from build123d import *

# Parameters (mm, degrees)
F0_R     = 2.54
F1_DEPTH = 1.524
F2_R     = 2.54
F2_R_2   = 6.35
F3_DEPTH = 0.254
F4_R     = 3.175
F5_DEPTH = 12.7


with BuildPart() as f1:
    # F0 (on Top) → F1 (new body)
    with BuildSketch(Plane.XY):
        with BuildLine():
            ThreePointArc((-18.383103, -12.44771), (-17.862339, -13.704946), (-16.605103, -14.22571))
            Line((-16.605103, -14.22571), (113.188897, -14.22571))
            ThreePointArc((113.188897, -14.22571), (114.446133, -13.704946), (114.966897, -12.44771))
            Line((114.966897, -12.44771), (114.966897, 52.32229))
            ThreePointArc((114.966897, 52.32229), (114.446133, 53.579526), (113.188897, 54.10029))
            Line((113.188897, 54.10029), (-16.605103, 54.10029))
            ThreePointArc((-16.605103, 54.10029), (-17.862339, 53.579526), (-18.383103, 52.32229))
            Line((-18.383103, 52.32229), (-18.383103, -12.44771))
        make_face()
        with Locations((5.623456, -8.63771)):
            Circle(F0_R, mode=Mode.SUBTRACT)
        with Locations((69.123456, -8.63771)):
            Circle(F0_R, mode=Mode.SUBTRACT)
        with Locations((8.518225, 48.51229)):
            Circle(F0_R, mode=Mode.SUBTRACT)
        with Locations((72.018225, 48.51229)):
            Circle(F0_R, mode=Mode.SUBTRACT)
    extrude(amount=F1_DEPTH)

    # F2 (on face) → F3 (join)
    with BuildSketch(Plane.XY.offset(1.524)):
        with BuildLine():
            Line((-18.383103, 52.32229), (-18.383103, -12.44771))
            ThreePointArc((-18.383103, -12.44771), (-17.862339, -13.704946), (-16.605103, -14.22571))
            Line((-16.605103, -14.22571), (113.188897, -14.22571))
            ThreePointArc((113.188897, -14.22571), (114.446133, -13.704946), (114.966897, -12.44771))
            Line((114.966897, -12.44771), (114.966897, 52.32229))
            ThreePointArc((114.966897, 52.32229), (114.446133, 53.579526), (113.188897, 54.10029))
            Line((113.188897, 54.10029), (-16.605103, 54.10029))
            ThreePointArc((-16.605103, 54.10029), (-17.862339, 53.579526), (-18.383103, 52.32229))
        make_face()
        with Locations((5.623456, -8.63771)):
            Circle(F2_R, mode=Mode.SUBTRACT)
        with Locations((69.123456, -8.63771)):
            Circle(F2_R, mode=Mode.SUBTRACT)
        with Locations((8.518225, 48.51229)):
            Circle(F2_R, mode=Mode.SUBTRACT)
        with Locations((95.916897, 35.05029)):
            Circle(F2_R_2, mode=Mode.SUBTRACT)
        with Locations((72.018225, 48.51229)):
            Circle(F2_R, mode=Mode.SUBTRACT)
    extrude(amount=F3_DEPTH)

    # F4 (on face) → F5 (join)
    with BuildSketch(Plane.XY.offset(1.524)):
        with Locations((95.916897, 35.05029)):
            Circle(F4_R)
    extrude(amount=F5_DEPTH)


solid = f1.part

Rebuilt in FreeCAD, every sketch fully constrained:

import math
import FreeCAD as App
import Part
import Sketcher
Q = App.Units.Quantity

doc = App.newDocument("Part")
params = doc.addObject("Spreadsheet::Sheet", "Params")
for row, (alias, value) in enumerate([
    ("sketch1_diameter", "0.2 in"),
    ("sketch1_radius", "0.07 in"),
    ("sketch1_width", "5.11 in"),
    ("sketch1_height", "2.55 in"),
    ("pad1_length", "0.06 in"),
    ("sketch2_diameter", "0.2 in"),
    ("sketch2_diameter2", "0.5 in"),
    ("sketch2_radius", "0.07 in"),
    ("sketch2_width", "5.11 in"),
    ("sketch2_height", "2.55 in"),
    ("pad2_length", "0.01 in"),
    ("sketch3_diameter", "0.25 in"),
    ("pad3_length", "0.5 in"),
], start=1):
    params.set(f"A{row}", alias)
    params.set(f"B{row}", "=" + value)
    params.setAlias(f"B{row}", alias)

body = doc.addObject("PartDesign::Body", "Body")

# Sketch on XY plane
sketch1 = doc.addObject("Sketcher::SketchObject", "Sketch")
body.addObject(sketch1)
sketch1.AttachmentSupport = (doc.XY_Plane, [""])
sketch1.MapMode = "FlatFace"
sketch1.addGeometry(Part.ArcOfCircle(Part.Circle(App.Vector(-16.605103, -12.44771, 0), App.Vector(0, 0, 1), 1.778), math.radians(179.999984), math.radians(270.000016)), False)
sketch1.addGeometry(Part.LineSegment(App.Vector(-16.605103, -14.22571, 0), App.Vector(113.188897, -14.22571, 0)), False)
sketch1.addGeometry(Part.ArcOfCircle(Part.Circle(App.Vector(113.188897, -12.44771, 0), App.Vector(0, 0, 1), 1.778), math.radians(-90.000016), math.radians(0.000016)), False)
sketch1.addGeometry(Part.LineSegment(App.Vector(114.966897, -12.44771, 0), App.Vector(114.966897, 52.32229, 0)), False)
sketch1.addGeometry(Part.ArcOfCircle(Part.Circle(App.Vector(113.188897, 52.32229, 0), App.Vector(0, 0, 1), 1.778), math.radians(-0.000016), math.radians(90.000016)), False)
sketch1.addGeometry(Part.LineSegment(App.Vector(113.188897, 54.10029, 0), App.Vector(-16.605103, 54.10029, 0)), False)
sketch1.addGeometry(Part.ArcOfCircle(Part.Circle(App.Vector(-16.605103, 52.32229, 0), App.Vector(0, 0, 1), 1.778), math.radians(89.999984), math.radians(180.000016)), False)
sketch1.addGeometry(Part.LineSegment(App.Vector(-18.383103, 52.32229, 0), App.Vector(-18.383103, -12.44771, 0)), False)
sketch1.addGeometry(Part.Circle(App.Vector(5.623456, -8.63771, 0), App.Vector(0, 0, 1), 2.54), False)
sketch1.addGeometry(Part.Circle(App.Vector(69.123456, -8.63771, 0), App.Vector(0, 0, 1), 2.54), False)
sketch1.addGeometry(Part.Circle(App.Vector(8.518225, 48.51229, 0), App.Vector(0, 0, 1), 2.54), False)
sketch1.addGeometry(Part.Circle(App.Vector(72.018225, 48.51229, 0), App.Vector(0, 0, 1), 2.54), False)
sketch1.addConstraint(Sketcher.Constraint("Tangent", 0, 2, 1, 1))
sketch1.addConstraint(Sketcher.Constraint("Tangent", 1, 2, 2, 1))
sketch1.addConstraint(Sketcher.Constraint("Tangent", 2, 2, 3, 1))
sketch1.addConstraint(Sketcher.Constraint("Tangent", 3, 2, 4, 1))
sketch1.addConstraint(Sketcher.Constraint("Tangent", 4, 2, 5, 1))
sketch1.addConstraint(Sketcher.Constraint("Tangent", 5, 2, 6, 1))
sketch1.addConstraint(Sketcher.Constraint("Tangent", 6, 2, 7, 1))
sketch1.addConstraint(Sketcher.Constraint("Tangent", 7, 2, 0, 1))
sketch1.addConstraint(Sketcher.Constraint("Horizontal", 1))
sketch1.addConstraint(Sketcher.Constraint("Vertical", 3))
sketch1.addConstraint(Sketcher.Constraint("Horizontal", 5))
sketch1.addConstraint(Sketcher.Constraint("Vertical", 7))
sketch1.addConstraint(Sketcher.Constraint("Equal", 0, 2))
sketch1.addConstraint(Sketcher.Constraint("Equal", 2, 4))
sketch1.addConstraint(Sketcher.Constraint("Equal", 4, 6))
sketch1.addConstraint(Sketcher.Constraint("Equal", 8, 9))
sketch1.addConstraint(Sketcher.Constraint("Equal", 9, 10))
sketch1.addConstraint(Sketcher.Constraint("Equal", 10, 11))
sketch1.addConstraint(Sketcher.Constraint("Horizontal", 8, 3, 9, 3))
sketch1.addConstraint(Sketcher.Constraint("Horizontal", 10, 3, 11, 3))
sketch1.addConstraint(Sketcher.Constraint("Diameter", 8, Q("0.2 in")))
sketch1.addConstraint(Sketcher.Constraint("Radius", 0, Q("0.07 in")))
sketch1.addConstraint(Sketcher.Constraint("DistanceX", 1, 1, 1, 2, Q("5.11 in")))
sketch1.addConstraint(Sketcher.Constraint("DistanceY", 3, 1, 3, 2, Q("2.55 in")))
sketch1.addConstraint(Sketcher.Constraint("DistanceY", 8, 3, 6, 3, Q("2.4 in")))
sketch1.addConstraint(Sketcher.Constraint("DistanceX", 8, 3, 9, 3, Q("2.5 in")))
sketch1.addConstraint(Sketcher.Constraint("DistanceY", 0, 3, 10, 3, Q("2.4 in")))
sketch1.addConstraint(Sketcher.Constraint("DistanceX", 10, 3, 11, 3, Q("2.5 in")))
sketch1.addConstraint(Sketcher.Constraint("DistanceY", 0, 3, -1, 1, 12.44771))
sketch1.addConstraint(Sketcher.Constraint("DistanceX", 0, 3, 8, 3, 22.228559))
sketch1.addConstraint(Sketcher.Constraint("DistanceX", 6, 3, 10, 3, 25.123328))
sketch1.addConstraint(Sketcher.Constraint("DistanceX", 0, 3, -1, 1, 16.605103))
sketch1.setExpression("Constraints[20]", "Params.sketch1_diameter")
sketch1.setExpression("Constraints[21]", "Params.sketch1_radius")
sketch1.setExpression("Constraints[22]", "Params.sketch1_width")
sketch1.setExpression("Constraints[23]", "Params.sketch1_height")
pad1 = doc.addObject("PartDesign::Pad", "Pad")
body.addObject(pad1)
pad1.Profile = sketch1
pad1.setExpression("Length", "Params.pad1_length")

# Sketch on XY plane
sketch2 = doc.addObject("Sketcher::SketchObject", "Sketch001")
body.addObject(sketch2)
sketch2.AttachmentSupport = (doc.XY_Plane, [""])
sketch2.MapMode = "FlatFace"
sketch2.AttachmentOffset = App.Placement(App.Vector(0, 0, 0.06 * 25.4), App.Rotation())
sketch2.addGeometry(Part.LineSegment(App.Vector(-18.383103, 52.32229, 0), App.Vector(-18.383103, -12.44771, 0)), False)
sketch2.addGeometry(Part.ArcOfCircle(Part.Circle(App.Vector(-16.605103, -12.44771, 0), App.Vector(0, 0, 1), 1.778), math.radians(179.999984), math.radians(270.000016)), False)
sketch2.addGeometry(Part.LineSegment(App.Vector(-16.605103, -14.22571, 0), App.Vector(113.188897, -14.22571, 0)), False)
sketch2.addGeometry(Part.ArcOfCircle(Part.Circle(App.Vector(113.188897, -12.44771, 0), App.Vector(0, 0, 1), 1.778), math.radians(-90.000016), math.radians(0.000016)), False)
sketch2.addGeometry(Part.LineSegment(App.Vector(114.966897, -12.44771, 0), App.Vector(114.966897, 52.32229, 0)), False)
sketch2.addGeometry(Part.ArcOfCircle(Part.Circle(App.Vector(113.188897, 52.32229, 0), App.Vector(0, 0, 1), 1.778), math.radians(-0.000016), math.radians(90.000016)), False)
sketch2.addGeometry(Part.LineSegment(App.Vector(113.188897, 54.10029, 0), App.Vector(-16.605103, 54.10029, 0)), False)
sketch2.addGeometry(Part.ArcOfCircle(Part.Circle(App.Vector(-16.605103, 52.32229, 0), App.Vector(0, 0, 1), 1.778), math.radians(89.999984), math.radians(180.000016)), False)
sketch2.addGeometry(Part.Circle(App.Vector(5.623456, -8.63771, 0), App.Vector(0, 0, 1), 2.54), False)
sketch2.addGeometry(Part.Circle(App.Vector(69.123456, -8.63771, 0), App.Vector(0, 0, 1), 2.54), False)
sketch2.addGeometry(Part.Circle(App.Vector(8.518225, 48.51229, 0), App.Vector(0, 0, 1), 2.54), False)
sketch2.addGeometry(Part.Circle(App.Vector(95.916897, 35.05029, 0), App.Vector(0, 0, 1), 6.35), False)
sketch2.addGeometry(Part.Circle(App.Vector(72.018225, 48.51229, 0), App.Vector(0, 0, 1), 2.54), False)
sketch2.addConstraint(Sketcher.Constraint("Tangent", 0, 2, 1, 1))
sketch2.addConstraint(Sketcher.Constraint("Tangent", 1, 2, 2, 1))
sketch2.addConstraint(Sketcher.Constraint("Tangent", 2, 2, 3, 1))
sketch2.addConstraint(Sketcher.Constraint("Tangent", 3, 2, 4, 1))
sketch2.addConstraint(Sketcher.Constraint("Tangent", 4, 2, 5, 1))
sketch2.addConstraint(Sketcher.Constraint("Tangent", 5, 2, 6, 1))
sketch2.addConstraint(Sketcher.Constraint("Tangent", 6, 2, 7, 1))
sketch2.addConstraint(Sketcher.Constraint("Tangent", 7, 2, 0, 1))
sketch2.addConstraint(Sketcher.Constraint("Vertical", 0))
sketch2.addConstraint(Sketcher.Constraint("Horizontal", 2))
sketch2.addConstraint(Sketcher.Constraint("Vertical", 4))
sketch2.addConstraint(Sketcher.Constraint("Horizontal", 6))
sketch2.addConstraint(Sketcher.Constraint("Equal", 1, 3))
sketch2.addConstraint(Sketcher.Constraint("Equal", 3, 5))
sketch2.addConstraint(Sketcher.Constraint("Equal", 5, 7))
sketch2.addConstraint(Sketcher.Constraint("Equal", 8, 9))
sketch2.addConstraint(Sketcher.Constraint("Equal", 9, 10))
sketch2.addConstraint(Sketcher.Constraint("Equal", 10, 12))
sketch2.addConstraint(Sketcher.Constraint("Horizontal", 8, 3, 9, 3))
sketch2.addConstraint(Sketcher.Constraint("Horizontal", 10, 3, 12, 3))
sketch2.addConstraint(Sketcher.Constraint("Diameter", 8, Q("0.2 in")))
sketch2.addConstraint(Sketcher.Constraint("Diameter", 11, Q("0.5 in")))
sketch2.addConstraint(Sketcher.Constraint("Radius", 1, Q("0.07 in")))
sketch2.addConstraint(Sketcher.Constraint("DistanceX", 2, 1, 2, 2, Q("5.11 in")))
sketch2.addConstraint(Sketcher.Constraint("DistanceY", 0, 2, 0, 1, Q("2.55 in")))
sketch2.addConstraint(Sketcher.Constraint("DistanceY", 8, 3, 7, 3, Q("2.4 in")))
sketch2.addConstraint(Sketcher.Constraint("DistanceX", 8, 3, 9, 3, Q("2.5 in")))
sketch2.addConstraint(Sketcher.Constraint("DistanceY", 1, 3, 10, 3, Q("2.4 in")))
sketch2.addConstraint(Sketcher.Constraint("DistanceX", 10, 3, 12, 3, Q("2.5 in")))
sketch2.addConstraint(Sketcher.Constraint("DistanceX", 11, 3, 5, 3, Q("0.68 in")))
sketch2.addConstraint(Sketcher.Constraint("DistanceY", 11, 3, 5, 3, Q("0.68 in")))
sketch2.addConstraint(Sketcher.Constraint("DistanceY", 1, 3, -1, 1, 12.44771))
sketch2.addConstraint(Sketcher.Constraint("DistanceX", 1, 3, 8, 3, 22.228559))
sketch2.addConstraint(Sketcher.Constraint("DistanceX", 7, 3, 10, 3, 25.123328))
sketch2.addConstraint(Sketcher.Constraint("DistanceX", 1, 3, -1, 1, 16.605103))
sketch2.setExpression("Constraints[20]", "Params.sketch2_diameter")
sketch2.setExpression("Constraints[21]", "Params.sketch2_diameter2")
sketch2.setExpression("Constraints[22]", "Params.sketch2_radius")
sketch2.setExpression("Constraints[23]", "Params.sketch2_width")
sketch2.setExpression("Constraints[24]", "Params.sketch2_height")
pad2 = doc.addObject("PartDesign::Pad", "Pad001")
body.addObject(pad2)
pad2.Profile = sketch2
pad2.setExpression("Length", "Params.pad2_length")

# Sketch on XY plane
sketch3 = doc.addObject("Sketcher::SketchObject", "Sketch002")
body.addObject(sketch3)
sketch3.AttachmentSupport = (doc.XY_Plane, [""])
sketch3.MapMode = "FlatFace"
sketch3.AttachmentOffset = App.Placement(App.Vector(0, 0, 0.06 * 25.4), App.Rotation())
sketch3.addGeometry(Part.Circle(App.Vector(95.916897, 35.05029, 0), App.Vector(0, 0, 1), 3.175), False)
sketch3.addConstraint(Sketcher.Constraint("Diameter", 0, Q("0.25 in")))
sketch3.addConstraint(Sketcher.Constraint("DistanceY", -1, 1, 0, 3, 35.05029))
sketch3.addConstraint(Sketcher.Constraint("DistanceX", -1, 1, 0, 3, 95.916897))
sketch3.setExpression("Constraints[0]", "Params.sketch3_diameter")
pad3 = doc.addObject("PartDesign::Pad", "Pad002")
body.addObject(pad3)
pad3.Profile = sketch3
pad3.setExpression("Length", "Params.pad3_length")

doc.recompute()
